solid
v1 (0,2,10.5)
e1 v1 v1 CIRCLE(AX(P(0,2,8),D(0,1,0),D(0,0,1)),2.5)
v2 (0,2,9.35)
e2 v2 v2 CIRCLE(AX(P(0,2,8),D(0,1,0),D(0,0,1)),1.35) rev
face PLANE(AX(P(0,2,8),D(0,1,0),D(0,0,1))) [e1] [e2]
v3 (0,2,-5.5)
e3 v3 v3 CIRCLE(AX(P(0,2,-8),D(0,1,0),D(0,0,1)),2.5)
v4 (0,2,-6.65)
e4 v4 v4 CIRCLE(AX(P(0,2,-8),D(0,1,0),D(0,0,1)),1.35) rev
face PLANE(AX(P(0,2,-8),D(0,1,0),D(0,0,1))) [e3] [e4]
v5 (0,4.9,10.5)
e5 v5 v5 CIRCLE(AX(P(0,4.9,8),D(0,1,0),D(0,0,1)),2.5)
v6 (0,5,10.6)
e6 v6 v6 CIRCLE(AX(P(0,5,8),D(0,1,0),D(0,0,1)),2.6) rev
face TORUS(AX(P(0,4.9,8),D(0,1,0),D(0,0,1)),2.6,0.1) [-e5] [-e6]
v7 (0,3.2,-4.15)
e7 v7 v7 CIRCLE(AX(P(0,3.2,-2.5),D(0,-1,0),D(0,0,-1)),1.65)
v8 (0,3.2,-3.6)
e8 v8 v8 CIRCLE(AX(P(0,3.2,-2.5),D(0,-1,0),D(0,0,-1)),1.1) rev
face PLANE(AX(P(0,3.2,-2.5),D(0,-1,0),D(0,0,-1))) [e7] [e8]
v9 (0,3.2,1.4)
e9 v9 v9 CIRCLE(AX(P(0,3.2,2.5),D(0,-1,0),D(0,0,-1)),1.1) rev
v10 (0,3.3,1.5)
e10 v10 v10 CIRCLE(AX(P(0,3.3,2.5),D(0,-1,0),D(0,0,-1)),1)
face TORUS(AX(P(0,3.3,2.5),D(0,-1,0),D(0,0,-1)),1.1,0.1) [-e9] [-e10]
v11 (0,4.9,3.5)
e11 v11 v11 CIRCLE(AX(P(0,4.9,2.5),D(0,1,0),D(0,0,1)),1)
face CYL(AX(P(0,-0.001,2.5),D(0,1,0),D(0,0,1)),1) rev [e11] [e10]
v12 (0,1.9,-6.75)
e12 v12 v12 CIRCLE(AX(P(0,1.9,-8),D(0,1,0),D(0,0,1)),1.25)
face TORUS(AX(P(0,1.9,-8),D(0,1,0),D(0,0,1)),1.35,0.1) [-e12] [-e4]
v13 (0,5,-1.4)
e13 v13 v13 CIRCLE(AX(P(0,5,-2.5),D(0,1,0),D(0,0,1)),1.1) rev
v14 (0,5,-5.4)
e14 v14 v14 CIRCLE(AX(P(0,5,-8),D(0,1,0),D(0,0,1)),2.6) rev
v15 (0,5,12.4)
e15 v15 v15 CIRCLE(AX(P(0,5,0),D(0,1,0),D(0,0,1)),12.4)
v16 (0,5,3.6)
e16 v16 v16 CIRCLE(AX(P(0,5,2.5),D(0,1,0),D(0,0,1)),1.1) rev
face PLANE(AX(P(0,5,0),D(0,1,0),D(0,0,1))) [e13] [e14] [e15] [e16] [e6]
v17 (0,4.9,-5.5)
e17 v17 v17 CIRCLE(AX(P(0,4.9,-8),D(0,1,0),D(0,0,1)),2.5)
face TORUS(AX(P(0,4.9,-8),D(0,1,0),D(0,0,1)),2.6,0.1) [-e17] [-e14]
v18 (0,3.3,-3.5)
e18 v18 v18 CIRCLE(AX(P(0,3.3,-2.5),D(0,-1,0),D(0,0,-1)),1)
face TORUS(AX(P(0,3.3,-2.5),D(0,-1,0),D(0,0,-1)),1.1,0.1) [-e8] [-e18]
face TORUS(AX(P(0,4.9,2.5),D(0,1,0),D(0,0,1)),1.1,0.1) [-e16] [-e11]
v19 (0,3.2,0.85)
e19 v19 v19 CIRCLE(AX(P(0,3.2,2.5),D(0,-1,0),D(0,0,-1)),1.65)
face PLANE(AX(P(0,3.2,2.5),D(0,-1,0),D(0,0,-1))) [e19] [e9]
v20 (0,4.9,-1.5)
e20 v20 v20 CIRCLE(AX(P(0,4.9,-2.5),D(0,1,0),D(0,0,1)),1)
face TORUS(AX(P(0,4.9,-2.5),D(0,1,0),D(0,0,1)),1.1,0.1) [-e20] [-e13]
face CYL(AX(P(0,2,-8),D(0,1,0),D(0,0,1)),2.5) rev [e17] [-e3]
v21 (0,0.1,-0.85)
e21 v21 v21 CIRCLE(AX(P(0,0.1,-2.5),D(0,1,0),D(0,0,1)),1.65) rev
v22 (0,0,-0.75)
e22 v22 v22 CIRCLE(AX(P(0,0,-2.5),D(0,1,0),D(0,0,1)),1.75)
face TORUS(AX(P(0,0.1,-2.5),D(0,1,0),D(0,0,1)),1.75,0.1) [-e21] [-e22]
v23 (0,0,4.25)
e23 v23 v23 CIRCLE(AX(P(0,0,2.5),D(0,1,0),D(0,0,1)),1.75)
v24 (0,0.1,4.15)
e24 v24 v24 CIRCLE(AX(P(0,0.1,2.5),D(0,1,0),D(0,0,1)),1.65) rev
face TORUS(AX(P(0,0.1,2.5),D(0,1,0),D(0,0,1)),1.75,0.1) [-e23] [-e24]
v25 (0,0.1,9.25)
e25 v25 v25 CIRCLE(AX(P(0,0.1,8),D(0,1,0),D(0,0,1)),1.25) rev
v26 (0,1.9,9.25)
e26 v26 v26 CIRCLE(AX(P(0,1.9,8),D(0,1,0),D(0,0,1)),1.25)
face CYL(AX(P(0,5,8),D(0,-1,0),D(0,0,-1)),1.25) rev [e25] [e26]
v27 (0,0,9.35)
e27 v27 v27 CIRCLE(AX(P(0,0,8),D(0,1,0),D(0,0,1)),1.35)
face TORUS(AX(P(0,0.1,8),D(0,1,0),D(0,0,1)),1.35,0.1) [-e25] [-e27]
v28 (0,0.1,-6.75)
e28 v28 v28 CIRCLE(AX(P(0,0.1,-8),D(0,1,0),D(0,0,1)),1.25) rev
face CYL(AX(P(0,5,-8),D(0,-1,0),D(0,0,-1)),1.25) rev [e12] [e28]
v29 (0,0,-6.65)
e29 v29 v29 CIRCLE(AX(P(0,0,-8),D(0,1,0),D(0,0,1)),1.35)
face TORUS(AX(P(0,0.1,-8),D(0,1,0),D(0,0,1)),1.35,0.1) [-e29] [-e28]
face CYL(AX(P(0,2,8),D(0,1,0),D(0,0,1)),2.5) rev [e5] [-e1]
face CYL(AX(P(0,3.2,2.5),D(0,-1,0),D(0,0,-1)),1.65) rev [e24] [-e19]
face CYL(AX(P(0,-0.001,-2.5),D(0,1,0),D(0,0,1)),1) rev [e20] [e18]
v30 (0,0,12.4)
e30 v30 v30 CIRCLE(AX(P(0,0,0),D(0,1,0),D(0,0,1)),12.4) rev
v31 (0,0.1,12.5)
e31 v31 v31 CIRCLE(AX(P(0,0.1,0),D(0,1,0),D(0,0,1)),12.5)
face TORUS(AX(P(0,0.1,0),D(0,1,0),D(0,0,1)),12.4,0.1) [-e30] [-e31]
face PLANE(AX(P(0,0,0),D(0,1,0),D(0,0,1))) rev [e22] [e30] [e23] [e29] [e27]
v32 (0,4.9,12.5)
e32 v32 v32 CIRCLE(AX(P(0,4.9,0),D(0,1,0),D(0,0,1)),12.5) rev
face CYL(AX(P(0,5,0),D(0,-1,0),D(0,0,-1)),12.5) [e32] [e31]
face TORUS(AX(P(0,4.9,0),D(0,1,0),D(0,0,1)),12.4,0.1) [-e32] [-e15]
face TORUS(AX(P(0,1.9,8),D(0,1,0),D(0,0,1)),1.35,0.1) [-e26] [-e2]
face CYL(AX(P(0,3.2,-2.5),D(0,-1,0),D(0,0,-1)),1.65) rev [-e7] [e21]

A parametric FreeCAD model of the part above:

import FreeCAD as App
import Part
import Sketcher
from FreeCAD import Vector
Q = App.Units.Quantity


def edges_at(feature, points):
    """Names of the edges that pass closest to the given points."""
    edges = feature.Shape.Edges
    near = lambda p: min(range(len(edges)), key=lambda i: edges[i].distToShape(Part.Vertex(*p))[0])
    return sorted({f"Edge{near(p) + 1}" for p in points})

doc = App.newDocument("Part")
params = doc.addObject("Spreadsheet::Sheet", "Params")
for row, (alias, value) in enumerate([
    ("sketch1_diameter", "25 mm"),
    ("sketch1_diameter2", "2.5 mm"),
    ("pad1_length", "5 mm"),
    ("sketch2_diameter", "2 mm"),
    ("sketch3_diameter", "2 mm"),
    ("sketch4_diameter", "5 mm"),
    ("pocket3_length", "3 mm"),
    ("sketch5_diameter", "3.3 mm"),
    ("pocket4_length", "3.2 mm"),
    ("fillet_radius", "0.1 mm"),
], start=1):
    params.set(f"A{row}", alias)
    params.set(f"B{row}", "=" + value)
    params.setAlias(f"B{row}", alias)

body = doc.addObject("PartDesign::Body", "Body")

sketch1 = doc.addObject("Sketcher::SketchObject", "Sketch")
body.addObject(sketch1)
sketch1.AttachmentSupport = (doc.XZ_Plane, [""])
sketch1.MapMode = "FlatFace"
sketch1.addGeometry([
    Part.Circle(Vector(0, 0, 0), Vector(0, 0, 1), 12.5),
    Part.Circle(Vector(0, -8, 0), Vector(0, 0, 1), 1.2),
    Part.Circle(Vector(0, 8, 0), Vector(0, 0, 1), 1.2),
], False)
sketch1.addConstraint([
    Sketcher.Constraint("Coincident", 0, 3, -1, 1),
    Sketcher.Constraint("Equal", 1, 2),
    Sketcher.Constraint("Symmetric", 1, 3, 2, 3, -1, 1),
    Sketcher.Constraint("PointOnObject", 1, 3, -2),
    Sketcher.Constraint("Diameter", 0, Q("25 mm")),
    Sketcher.Constraint("Diameter", 1, Q("2.5 mm")),
    Sketcher.Constraint("DistanceY", 1, 3, -1, 1, Q("8 mm")),
])
sketch1.setExpression("Constraints[4]", "Params.sketch1_diameter")
sketch1.setExpression("Constraints[5]", "Params.sketch1_diameter2")
pad1 = doc.addObject("PartDesign::Pad", "Pad")
body.addObject(pad1)
pad1.Profile = sketch1
pad1.setExpression("Length", "Params.pad1_length")
pad1.Reversed = True

sketch2 = doc.addObject("Sketcher::SketchObject", "Sketch001")
body.addObject(sketch2)
sketch2.AttachmentSupport = (doc.XZ_Plane, [""])
sketch2.MapMode = "FlatFace"
sketch2.AttachmentOffset = App.Placement(Vector(0, 0, -5), App.Rotation())
sketch2.addGeometry(Part.Circle(Vector(0, -2.5, 0), Vector(0, 0, 1), 1), False)
sketch2.addConstraint([
    Sketcher.Constraint("PointOnObject", 0, 3, -2),
    Sketcher.Constraint("Diameter", 0, Q("2 mm")),
    Sketcher.Constraint("DistanceY", 0, 3, -1, 1, Q("2.5 mm")),
])
sketch2.setExpression("Constraints[1]", "Params.sketch2_diameter")
pocket1 = doc.addObject("PartDesign::Pocket", "Pocket")
body.addObject(pocket1)
pocket1.Profile = sketch2
pocket1.Type = "UpToFirst"
pocket1.Reversed = True

sketch3 = doc.addObject("Sketcher::SketchObject", "Sketch002")
body.addObject(sketch3)
sketch3.AttachmentSupport = (doc.XZ_Plane, [""])
sketch3.MapMode = "FlatFace"
sketch3.AttachmentOffset = App.Placement(Vector(0, 0, -5), App.Rotation())
sketch3.addGeometry(Part.Circle(Vector(0, 2.5, 0), Vector(0, 0, 1), 1), False)
sketch3.addConstraint([
    Sketcher.Constraint("PointOnObject", 0, 3, -2),
    Sketcher.Constraint("Diameter", 0, Q("2 mm")),
    Sketcher.Constraint("DistanceY", -1, 1, 0, 3, Q("2.5 mm")),
])
sketch3.setExpression("Constraints[1]", "Params.sketch3_diameter")
pocket2 = doc.addObject("PartDesign::Pocket", "Pocket001")
body.addObject(pocket2)
pocket2.Profile = sketch3
pocket2.Type = "UpToFirst"
pocket2.Reversed = True

sketch4 = doc.addObject("Sketcher::SketchObject", "Sketch003")
body.addObject(sketch4)
sketch4.AttachmentSupport = (doc.XZ_Plane, [""])
sketch4.MapMode = "FlatFace"
sketch4.AttachmentOffset = App.Placement(Vector(0, 0, -5), App.Rotation())
sketch4.addGeometry([
    Part.Circle(Vector(0, -8, 0), Vector(0, 0, 1), 2.5),
    Part.Circle(Vector(0, 8, 0), Vector(0, 0, 1), 2.5),
], False)
sketch4.addConstraint([
    Sketcher.Constraint("Equal", 0, 1),
    Sketcher.Constraint("Symmetric", 0, 3, 1, 3, -1, 1),
    Sketcher.Constraint("PointOnObject", 0, 3, -2),
    Sketcher.Constraint("Diameter", 0, Q("5 mm")),
    Sketcher.Constraint("DistanceY", 0, 3, -1, 1, Q("8 mm")),
])
sketch4.setExpression("Constraints[3]", "Params.sketch4_diameter")
pocket3 = doc.addObject("PartDesign::Pocket", "Pocket002")
body.addObject(pocket3)
pocket3.Profile = sketch4
pocket3.setExpression("Length", "Params.pocket3_length")
pocket3.Reversed = True

sketch5 = doc.addObject("Sketcher::SketchObject", "Sketch004")
body.addObject(sketch5)
sketch5.AttachmentSupport = (doc.XZ_Plane, [""])
sketch5.MapMode = "FlatFace"
sketch5.addGeometry([
    Part.Circle(Vector(0, 2.5, 0), Vector(0, 0, 1), 1.6),
    Part.Circle(Vector(0, -2.5, 0), Vector(0, 0, 1), 1.6),
], False)
sketch5.addConstraint([
    Sketcher.Constraint("Equal", 0, 1),
    Sketcher.Constraint("Symmetric", 0, 3, 1, 3, -1, 1),
    Sketcher.Constraint("PointOnObject", 0, 3, -2),
    Sketcher.Constraint("Diameter", 0, Q("3.3 mm")),
    Sketcher.Constraint("DistanceY", 1, 3, 0, 3, Q("5 mm")),
])
sketch5.setExpression("Constraints[3]", "Params.sketch5_diameter")
pocket4 = doc.addObject("PartDesign::Pocket", "Pocket003")
body.addObject(pocket4)
pocket4.Profile = sketch5
pocket4.setExpression("Length", "Params.pocket4_length")
doc.recompute()

fillet = doc.addObject("PartDesign::Fillet", "Fillet")
body.addObject(fillet)
fillet.Base = (pocket4, edges_at(pocket4, [
    (0, 5, -3.5),
    (0, 5, 1.5),
    (0, 0, -12.5),
    (0, 2, -9.25),
    (0, 5, -10.5),
    (0, 2, 6.75),
    (0, 5, 5.5),
    (0, 0, 4.15),
    (0, 3.2, 1.5),
    (0, 0, -0.85),
    (0, 3.2, -3.5),
    (0, 5, -12.5),
    (0, 0, -9.25),
    (0, 0, 6.75),
]))
fillet.setExpression("Radius", "Params.fillet_radius")

doc.recompute()
